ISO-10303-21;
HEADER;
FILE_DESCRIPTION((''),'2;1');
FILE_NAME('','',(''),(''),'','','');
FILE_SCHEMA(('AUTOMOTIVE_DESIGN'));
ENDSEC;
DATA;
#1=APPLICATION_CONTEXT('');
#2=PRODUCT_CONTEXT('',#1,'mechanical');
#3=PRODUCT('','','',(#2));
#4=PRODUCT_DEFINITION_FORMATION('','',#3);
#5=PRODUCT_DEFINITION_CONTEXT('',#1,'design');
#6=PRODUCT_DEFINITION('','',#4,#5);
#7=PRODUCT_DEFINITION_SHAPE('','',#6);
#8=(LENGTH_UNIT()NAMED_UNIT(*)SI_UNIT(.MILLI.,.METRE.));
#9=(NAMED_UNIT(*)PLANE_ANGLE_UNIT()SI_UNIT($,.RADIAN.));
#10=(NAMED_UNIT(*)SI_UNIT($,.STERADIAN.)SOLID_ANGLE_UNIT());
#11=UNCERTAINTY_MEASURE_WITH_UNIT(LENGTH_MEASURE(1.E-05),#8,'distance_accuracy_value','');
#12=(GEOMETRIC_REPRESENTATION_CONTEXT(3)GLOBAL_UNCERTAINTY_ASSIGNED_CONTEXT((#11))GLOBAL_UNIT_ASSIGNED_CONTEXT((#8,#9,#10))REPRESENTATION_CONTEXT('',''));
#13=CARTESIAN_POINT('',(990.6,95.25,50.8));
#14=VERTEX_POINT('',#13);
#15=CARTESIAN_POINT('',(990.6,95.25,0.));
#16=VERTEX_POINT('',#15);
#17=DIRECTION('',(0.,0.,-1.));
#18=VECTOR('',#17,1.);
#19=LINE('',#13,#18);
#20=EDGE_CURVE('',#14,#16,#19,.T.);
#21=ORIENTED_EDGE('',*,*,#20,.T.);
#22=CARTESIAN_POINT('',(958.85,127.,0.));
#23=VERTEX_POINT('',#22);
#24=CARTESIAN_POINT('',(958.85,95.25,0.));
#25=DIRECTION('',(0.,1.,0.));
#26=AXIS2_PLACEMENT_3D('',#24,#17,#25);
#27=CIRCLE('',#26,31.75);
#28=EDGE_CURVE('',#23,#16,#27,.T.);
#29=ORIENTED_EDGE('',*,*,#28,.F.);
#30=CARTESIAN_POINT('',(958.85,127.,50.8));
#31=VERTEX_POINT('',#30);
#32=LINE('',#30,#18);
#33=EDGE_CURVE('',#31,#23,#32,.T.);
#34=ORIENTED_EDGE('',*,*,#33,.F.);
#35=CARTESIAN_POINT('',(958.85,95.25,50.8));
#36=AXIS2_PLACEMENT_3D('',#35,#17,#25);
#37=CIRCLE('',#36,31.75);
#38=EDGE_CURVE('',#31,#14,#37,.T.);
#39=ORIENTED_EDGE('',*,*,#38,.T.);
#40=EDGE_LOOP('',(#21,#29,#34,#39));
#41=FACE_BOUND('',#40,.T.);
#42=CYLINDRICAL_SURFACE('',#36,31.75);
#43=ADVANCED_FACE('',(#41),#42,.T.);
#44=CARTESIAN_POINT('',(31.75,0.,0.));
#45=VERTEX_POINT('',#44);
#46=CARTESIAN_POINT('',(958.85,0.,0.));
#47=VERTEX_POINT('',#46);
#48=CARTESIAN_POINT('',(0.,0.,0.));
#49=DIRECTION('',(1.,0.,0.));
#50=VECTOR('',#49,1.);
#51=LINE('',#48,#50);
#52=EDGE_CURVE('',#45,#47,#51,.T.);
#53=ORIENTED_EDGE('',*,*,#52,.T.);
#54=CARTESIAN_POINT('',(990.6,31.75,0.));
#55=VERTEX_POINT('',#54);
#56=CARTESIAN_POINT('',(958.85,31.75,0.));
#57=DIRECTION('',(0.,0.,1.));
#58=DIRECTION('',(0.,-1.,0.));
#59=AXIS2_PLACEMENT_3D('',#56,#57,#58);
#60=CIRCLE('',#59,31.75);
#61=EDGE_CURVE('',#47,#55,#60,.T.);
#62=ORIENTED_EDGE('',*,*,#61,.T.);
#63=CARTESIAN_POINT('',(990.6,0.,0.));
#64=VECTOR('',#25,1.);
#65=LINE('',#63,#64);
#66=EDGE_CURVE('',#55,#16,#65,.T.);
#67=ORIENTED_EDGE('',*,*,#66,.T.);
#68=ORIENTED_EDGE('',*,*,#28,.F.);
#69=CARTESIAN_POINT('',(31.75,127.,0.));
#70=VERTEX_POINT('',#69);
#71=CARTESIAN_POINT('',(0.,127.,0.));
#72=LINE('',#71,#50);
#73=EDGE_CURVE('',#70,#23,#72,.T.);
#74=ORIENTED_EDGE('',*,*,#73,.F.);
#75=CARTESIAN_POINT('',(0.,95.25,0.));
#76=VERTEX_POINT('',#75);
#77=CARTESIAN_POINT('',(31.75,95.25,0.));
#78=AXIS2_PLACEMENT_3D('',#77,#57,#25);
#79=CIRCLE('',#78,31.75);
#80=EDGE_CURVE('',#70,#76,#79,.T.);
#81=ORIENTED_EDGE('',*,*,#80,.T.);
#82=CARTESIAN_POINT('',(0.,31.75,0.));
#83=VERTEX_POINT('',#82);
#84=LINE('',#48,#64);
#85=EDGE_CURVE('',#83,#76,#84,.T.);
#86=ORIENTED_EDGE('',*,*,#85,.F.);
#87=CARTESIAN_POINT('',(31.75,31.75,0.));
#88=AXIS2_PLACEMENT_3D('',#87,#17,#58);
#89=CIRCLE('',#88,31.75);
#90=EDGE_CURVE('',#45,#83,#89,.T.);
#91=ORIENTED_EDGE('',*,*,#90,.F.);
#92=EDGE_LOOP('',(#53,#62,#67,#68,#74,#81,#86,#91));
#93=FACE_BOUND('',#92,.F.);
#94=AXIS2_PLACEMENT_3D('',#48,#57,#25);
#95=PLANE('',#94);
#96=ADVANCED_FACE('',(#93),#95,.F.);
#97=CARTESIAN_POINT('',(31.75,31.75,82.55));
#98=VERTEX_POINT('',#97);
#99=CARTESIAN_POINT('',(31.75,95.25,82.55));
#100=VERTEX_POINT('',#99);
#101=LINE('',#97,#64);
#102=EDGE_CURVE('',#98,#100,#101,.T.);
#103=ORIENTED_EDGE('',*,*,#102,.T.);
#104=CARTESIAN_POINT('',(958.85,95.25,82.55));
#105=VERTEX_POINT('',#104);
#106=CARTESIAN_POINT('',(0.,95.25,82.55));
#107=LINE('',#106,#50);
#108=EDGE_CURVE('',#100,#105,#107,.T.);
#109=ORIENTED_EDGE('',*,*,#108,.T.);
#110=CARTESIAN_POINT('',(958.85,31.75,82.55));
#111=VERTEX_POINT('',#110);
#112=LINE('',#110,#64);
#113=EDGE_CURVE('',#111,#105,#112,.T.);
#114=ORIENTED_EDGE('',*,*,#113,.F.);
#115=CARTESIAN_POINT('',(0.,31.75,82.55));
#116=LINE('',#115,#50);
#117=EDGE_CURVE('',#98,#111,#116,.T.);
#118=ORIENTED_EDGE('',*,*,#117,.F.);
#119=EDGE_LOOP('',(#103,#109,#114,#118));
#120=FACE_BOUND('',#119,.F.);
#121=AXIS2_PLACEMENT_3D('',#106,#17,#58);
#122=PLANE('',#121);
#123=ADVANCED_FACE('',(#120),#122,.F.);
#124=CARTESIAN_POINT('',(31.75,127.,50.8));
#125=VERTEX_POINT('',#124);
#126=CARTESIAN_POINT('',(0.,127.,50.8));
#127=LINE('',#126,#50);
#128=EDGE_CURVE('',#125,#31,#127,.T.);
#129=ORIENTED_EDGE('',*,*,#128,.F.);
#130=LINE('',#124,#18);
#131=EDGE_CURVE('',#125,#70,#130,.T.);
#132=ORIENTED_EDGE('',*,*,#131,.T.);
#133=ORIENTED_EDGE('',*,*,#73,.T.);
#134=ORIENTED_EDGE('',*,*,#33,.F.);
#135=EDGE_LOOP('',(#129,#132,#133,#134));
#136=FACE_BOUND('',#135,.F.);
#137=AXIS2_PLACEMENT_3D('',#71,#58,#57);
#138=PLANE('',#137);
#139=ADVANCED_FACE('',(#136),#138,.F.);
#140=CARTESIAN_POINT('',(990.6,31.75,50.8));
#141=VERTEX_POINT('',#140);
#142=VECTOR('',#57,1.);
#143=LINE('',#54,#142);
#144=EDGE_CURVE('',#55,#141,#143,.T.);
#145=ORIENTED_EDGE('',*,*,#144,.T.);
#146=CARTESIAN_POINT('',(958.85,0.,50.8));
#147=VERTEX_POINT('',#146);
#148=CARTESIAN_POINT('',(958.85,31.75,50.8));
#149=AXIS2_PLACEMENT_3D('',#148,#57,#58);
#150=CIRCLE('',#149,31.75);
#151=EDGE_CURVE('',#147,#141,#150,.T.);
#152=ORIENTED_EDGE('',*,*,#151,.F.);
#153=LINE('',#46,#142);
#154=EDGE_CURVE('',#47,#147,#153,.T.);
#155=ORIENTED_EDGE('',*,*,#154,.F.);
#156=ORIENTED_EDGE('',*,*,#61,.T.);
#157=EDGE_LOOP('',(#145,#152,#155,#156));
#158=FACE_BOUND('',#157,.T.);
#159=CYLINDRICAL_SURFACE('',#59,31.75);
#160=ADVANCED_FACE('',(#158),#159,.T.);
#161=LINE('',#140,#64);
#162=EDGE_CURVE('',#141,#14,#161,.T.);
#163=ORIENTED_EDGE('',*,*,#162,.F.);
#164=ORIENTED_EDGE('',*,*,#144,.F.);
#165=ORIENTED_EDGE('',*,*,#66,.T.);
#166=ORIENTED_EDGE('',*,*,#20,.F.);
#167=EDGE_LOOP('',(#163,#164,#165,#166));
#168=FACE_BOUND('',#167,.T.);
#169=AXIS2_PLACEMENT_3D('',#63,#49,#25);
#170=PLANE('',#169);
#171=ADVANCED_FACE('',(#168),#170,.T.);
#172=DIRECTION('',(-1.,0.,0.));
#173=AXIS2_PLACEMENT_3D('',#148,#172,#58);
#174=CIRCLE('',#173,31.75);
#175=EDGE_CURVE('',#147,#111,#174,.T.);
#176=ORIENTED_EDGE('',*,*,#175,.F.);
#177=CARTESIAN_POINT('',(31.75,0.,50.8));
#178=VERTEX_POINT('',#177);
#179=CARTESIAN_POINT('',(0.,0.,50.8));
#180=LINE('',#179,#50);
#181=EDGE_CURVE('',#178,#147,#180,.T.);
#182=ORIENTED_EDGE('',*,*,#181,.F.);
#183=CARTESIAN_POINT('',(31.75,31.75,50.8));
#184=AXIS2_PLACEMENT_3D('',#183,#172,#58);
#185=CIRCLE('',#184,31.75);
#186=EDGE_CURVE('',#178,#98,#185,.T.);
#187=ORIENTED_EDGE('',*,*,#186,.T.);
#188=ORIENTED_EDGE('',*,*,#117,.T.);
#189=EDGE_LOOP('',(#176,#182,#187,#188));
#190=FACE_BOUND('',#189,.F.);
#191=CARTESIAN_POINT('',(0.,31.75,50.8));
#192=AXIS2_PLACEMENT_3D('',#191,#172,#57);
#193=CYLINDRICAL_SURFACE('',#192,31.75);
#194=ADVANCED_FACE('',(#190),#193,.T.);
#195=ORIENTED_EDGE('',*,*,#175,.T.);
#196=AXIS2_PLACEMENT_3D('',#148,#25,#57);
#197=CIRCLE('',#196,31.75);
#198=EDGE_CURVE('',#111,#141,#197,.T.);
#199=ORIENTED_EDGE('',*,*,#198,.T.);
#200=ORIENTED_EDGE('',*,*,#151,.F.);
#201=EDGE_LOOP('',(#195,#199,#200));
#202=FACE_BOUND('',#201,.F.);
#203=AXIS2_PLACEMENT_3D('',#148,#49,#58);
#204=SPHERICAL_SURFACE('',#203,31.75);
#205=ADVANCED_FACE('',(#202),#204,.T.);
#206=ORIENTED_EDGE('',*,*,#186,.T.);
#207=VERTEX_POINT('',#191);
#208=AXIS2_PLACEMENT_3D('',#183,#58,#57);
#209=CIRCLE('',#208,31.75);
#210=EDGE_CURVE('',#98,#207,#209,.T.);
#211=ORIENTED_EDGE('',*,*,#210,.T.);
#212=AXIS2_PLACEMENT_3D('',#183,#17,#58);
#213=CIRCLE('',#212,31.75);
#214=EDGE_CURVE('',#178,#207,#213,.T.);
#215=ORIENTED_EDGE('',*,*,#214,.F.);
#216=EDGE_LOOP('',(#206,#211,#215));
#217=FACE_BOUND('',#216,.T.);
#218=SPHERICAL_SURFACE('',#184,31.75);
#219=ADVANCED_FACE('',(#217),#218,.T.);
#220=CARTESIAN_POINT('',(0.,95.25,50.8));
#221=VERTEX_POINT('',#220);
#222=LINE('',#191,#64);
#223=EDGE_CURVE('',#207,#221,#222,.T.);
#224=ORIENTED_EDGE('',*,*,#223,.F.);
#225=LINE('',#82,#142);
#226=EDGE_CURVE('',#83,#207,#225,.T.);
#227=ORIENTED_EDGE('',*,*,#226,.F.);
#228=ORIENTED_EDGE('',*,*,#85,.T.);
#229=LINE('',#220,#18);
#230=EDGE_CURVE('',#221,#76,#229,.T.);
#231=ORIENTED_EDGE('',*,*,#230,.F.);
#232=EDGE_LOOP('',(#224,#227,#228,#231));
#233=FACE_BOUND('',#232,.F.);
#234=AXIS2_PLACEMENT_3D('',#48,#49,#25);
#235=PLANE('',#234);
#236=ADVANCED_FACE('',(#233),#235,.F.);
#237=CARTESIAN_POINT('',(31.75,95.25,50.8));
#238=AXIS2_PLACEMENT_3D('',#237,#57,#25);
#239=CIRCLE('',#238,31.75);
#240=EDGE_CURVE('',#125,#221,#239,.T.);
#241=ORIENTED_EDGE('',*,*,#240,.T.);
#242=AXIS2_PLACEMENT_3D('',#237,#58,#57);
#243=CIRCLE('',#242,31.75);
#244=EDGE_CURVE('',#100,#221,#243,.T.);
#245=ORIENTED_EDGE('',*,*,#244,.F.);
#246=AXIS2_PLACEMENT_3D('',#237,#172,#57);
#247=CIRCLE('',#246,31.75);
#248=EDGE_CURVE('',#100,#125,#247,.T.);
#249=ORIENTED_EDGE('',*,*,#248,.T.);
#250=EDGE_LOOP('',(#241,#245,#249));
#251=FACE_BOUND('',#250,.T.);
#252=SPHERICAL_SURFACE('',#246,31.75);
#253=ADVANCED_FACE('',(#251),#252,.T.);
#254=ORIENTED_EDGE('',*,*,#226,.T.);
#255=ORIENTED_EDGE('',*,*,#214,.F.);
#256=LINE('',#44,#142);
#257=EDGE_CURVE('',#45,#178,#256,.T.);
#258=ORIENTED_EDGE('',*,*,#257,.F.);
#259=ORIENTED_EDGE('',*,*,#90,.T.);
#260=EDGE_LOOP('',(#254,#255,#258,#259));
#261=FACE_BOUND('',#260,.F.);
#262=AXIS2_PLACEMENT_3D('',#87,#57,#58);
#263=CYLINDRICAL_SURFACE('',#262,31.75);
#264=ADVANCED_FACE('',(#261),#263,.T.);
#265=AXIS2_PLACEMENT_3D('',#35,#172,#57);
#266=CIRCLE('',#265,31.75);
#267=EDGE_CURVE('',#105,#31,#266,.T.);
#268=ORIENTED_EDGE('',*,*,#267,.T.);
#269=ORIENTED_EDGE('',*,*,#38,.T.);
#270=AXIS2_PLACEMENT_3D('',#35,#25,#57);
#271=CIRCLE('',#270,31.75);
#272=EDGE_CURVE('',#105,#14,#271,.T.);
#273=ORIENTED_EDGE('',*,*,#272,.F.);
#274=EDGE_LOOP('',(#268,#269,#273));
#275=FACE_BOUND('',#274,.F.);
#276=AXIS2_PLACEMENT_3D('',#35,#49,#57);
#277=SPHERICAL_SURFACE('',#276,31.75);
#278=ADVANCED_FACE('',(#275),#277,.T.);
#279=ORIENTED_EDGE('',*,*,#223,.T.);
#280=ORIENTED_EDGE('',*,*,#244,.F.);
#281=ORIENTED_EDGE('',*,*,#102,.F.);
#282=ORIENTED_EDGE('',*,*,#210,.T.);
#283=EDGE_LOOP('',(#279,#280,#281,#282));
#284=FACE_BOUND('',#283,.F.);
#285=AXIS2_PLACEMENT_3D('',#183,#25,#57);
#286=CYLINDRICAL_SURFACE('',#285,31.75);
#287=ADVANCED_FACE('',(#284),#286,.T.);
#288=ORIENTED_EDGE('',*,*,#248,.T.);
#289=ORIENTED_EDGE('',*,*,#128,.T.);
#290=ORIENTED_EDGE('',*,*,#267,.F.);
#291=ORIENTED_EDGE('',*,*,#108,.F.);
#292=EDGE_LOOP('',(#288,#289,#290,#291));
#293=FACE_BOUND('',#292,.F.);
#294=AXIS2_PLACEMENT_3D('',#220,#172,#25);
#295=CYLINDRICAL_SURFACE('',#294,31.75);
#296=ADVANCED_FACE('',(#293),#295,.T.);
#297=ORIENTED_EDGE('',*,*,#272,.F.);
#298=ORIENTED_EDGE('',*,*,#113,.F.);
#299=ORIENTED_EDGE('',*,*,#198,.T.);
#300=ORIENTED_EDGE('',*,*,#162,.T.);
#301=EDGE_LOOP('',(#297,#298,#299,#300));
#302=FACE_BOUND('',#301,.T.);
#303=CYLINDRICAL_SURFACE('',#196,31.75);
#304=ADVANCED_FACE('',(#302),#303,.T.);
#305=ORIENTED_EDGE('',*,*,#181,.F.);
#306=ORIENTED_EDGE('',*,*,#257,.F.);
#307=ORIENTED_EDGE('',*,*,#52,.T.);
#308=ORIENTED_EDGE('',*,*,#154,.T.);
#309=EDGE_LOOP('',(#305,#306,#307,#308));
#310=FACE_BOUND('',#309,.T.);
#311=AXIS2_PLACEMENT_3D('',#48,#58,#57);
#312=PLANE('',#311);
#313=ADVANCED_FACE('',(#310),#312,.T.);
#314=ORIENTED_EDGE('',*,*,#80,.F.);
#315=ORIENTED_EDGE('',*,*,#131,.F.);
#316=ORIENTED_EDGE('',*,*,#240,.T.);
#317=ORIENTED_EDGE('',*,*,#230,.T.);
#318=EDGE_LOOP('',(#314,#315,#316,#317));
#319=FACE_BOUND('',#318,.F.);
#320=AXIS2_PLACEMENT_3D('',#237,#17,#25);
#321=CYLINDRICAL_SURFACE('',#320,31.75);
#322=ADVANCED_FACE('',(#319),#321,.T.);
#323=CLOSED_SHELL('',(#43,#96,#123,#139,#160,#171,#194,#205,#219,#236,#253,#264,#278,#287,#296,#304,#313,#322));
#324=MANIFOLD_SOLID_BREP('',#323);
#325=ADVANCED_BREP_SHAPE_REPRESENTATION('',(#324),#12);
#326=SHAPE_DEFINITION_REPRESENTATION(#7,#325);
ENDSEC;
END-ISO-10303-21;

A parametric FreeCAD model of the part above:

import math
import FreeCAD as App
import Part
import Sketcher
from FreeCAD import Vector
Q = App.Units.Quantity


def edges_at(feature, points):
    """Names of the edges that pass closest to the given points."""
    edges = feature.Shape.Edges
    near = lambda p: min(range(len(edges)), key=lambda i: edges[i].distToShape(Part.Vertex(*p))[0])
    return sorted({f"Edge{near(p) + 1}" for p in points})

doc = App.newDocument("Part")
body = doc.addObject("PartDesign::Body", "Body")

sketch1 = doc.addObject("Sketcher::SketchObject", "Sketch")
body.addObject(sketch1)
sketch1.AttachmentSupport = (doc.YZ_Plane, [""])
sketch1.MapMode = "FlatFace"
sketch1.addGeometry(Part.LineSegment(Vector(0, 51, 0), Vector(0, 0, 0)), False)
sketch1.addGeometry(Part.LineSegment(Vector(0, 0, 0), Vector(127, 0, 0)), False)
sketch1.addGeometry(Part.LineSegment(Vector(127, 0, 0), Vector(127, 51, 0)), False)
sketch1.addGeometry(Part.ArcOfCircle(Part.Circle(Vector(95, 51, 0), Vector(0, 0, 1), 32), math.radians(0), math.radians(90)), False)
sketch1.addGeometry(Part.LineSegment(Vector(95, 83, 0), Vector(32, 83, 0)), False)
sketch1.addGeometry(Part.ArcOfCircle(Part.Circle(Vector(32, 51, 0), Vector(0, 0, 1), 32), math.radians(90), math.radians(180)), False)
sketch1.addConstraint(Sketcher.Constraint("Coincident", 0, 2, 1, 1))
sketch1.addConstraint(Sketcher.Constraint("Coincident", 1, 2, 2, 1))
sketch1.addConstraint(Sketcher.Constraint("Tangent", 2, 2, 3, 1))
sketch1.addConstraint(Sketcher.Constraint("Tangent", 3, 2, 4, 1))
sketch1.addConstraint(Sketcher.Constraint("Tangent", 4, 2, 5, 1))
sketch1.addConstraint(Sketcher.Constraint("Tangent", 5, 2, 0, 1))
sketch1.addConstraint(Sketcher.Constraint("Vertical", 0))
sketch1.addConstraint(Sketcher.Constraint("Horizontal", 1))
sketch1.addConstraint(Sketcher.Constraint("Vertical", 2))
sketch1.addConstraint(Sketcher.Constraint("Horizontal", 4))
sketch1.addConstraint(Sketcher.Constraint("Coincident", 0, 2, -1, 1))
sketch1.addConstraint(Sketcher.Constraint("Equal", 3, 5))
sketch1.addConstraint(Sketcher.Constraint("DistanceX", 1, 1, 1, 2, Q("5 in")))
sketch1.addConstraint(Sketcher.Constraint("Radius", 3, Q("1.25 in")))
sketch1.addConstraint(Sketcher.Constraint("DistanceY", 0, 2, 0, 1, Q("2 in")))
pad1 = doc.addObject("PartDesign::Pad", "Pad")
body.addObject(pad1)
pad1.Profile = sketch1
pad1.Length = Q("39 in")
doc.recompute()

fillet = doc.addObject("PartDesign::Fillet", "Fillet")
body.addObject(fillet)
fillet.Base = (pad1, edges_at(pad1, [
    (990.6, 0, 25.4),
    (990.6, 63.5, 82.55),
    (990.6, 117.701, 73.251),
    (990.6, 127, 25.4),
    (990.6, 9.299, 73.251),
    (0, 0, 25.4),
    (0, 63.5, 82.55),
    (0, 117.701, 73.251),
    (0, 127, 25.4),
    (0, 9.299, 73.251),
]))
fillet.Radius = Q("1.25 in")

doc.recompute()
